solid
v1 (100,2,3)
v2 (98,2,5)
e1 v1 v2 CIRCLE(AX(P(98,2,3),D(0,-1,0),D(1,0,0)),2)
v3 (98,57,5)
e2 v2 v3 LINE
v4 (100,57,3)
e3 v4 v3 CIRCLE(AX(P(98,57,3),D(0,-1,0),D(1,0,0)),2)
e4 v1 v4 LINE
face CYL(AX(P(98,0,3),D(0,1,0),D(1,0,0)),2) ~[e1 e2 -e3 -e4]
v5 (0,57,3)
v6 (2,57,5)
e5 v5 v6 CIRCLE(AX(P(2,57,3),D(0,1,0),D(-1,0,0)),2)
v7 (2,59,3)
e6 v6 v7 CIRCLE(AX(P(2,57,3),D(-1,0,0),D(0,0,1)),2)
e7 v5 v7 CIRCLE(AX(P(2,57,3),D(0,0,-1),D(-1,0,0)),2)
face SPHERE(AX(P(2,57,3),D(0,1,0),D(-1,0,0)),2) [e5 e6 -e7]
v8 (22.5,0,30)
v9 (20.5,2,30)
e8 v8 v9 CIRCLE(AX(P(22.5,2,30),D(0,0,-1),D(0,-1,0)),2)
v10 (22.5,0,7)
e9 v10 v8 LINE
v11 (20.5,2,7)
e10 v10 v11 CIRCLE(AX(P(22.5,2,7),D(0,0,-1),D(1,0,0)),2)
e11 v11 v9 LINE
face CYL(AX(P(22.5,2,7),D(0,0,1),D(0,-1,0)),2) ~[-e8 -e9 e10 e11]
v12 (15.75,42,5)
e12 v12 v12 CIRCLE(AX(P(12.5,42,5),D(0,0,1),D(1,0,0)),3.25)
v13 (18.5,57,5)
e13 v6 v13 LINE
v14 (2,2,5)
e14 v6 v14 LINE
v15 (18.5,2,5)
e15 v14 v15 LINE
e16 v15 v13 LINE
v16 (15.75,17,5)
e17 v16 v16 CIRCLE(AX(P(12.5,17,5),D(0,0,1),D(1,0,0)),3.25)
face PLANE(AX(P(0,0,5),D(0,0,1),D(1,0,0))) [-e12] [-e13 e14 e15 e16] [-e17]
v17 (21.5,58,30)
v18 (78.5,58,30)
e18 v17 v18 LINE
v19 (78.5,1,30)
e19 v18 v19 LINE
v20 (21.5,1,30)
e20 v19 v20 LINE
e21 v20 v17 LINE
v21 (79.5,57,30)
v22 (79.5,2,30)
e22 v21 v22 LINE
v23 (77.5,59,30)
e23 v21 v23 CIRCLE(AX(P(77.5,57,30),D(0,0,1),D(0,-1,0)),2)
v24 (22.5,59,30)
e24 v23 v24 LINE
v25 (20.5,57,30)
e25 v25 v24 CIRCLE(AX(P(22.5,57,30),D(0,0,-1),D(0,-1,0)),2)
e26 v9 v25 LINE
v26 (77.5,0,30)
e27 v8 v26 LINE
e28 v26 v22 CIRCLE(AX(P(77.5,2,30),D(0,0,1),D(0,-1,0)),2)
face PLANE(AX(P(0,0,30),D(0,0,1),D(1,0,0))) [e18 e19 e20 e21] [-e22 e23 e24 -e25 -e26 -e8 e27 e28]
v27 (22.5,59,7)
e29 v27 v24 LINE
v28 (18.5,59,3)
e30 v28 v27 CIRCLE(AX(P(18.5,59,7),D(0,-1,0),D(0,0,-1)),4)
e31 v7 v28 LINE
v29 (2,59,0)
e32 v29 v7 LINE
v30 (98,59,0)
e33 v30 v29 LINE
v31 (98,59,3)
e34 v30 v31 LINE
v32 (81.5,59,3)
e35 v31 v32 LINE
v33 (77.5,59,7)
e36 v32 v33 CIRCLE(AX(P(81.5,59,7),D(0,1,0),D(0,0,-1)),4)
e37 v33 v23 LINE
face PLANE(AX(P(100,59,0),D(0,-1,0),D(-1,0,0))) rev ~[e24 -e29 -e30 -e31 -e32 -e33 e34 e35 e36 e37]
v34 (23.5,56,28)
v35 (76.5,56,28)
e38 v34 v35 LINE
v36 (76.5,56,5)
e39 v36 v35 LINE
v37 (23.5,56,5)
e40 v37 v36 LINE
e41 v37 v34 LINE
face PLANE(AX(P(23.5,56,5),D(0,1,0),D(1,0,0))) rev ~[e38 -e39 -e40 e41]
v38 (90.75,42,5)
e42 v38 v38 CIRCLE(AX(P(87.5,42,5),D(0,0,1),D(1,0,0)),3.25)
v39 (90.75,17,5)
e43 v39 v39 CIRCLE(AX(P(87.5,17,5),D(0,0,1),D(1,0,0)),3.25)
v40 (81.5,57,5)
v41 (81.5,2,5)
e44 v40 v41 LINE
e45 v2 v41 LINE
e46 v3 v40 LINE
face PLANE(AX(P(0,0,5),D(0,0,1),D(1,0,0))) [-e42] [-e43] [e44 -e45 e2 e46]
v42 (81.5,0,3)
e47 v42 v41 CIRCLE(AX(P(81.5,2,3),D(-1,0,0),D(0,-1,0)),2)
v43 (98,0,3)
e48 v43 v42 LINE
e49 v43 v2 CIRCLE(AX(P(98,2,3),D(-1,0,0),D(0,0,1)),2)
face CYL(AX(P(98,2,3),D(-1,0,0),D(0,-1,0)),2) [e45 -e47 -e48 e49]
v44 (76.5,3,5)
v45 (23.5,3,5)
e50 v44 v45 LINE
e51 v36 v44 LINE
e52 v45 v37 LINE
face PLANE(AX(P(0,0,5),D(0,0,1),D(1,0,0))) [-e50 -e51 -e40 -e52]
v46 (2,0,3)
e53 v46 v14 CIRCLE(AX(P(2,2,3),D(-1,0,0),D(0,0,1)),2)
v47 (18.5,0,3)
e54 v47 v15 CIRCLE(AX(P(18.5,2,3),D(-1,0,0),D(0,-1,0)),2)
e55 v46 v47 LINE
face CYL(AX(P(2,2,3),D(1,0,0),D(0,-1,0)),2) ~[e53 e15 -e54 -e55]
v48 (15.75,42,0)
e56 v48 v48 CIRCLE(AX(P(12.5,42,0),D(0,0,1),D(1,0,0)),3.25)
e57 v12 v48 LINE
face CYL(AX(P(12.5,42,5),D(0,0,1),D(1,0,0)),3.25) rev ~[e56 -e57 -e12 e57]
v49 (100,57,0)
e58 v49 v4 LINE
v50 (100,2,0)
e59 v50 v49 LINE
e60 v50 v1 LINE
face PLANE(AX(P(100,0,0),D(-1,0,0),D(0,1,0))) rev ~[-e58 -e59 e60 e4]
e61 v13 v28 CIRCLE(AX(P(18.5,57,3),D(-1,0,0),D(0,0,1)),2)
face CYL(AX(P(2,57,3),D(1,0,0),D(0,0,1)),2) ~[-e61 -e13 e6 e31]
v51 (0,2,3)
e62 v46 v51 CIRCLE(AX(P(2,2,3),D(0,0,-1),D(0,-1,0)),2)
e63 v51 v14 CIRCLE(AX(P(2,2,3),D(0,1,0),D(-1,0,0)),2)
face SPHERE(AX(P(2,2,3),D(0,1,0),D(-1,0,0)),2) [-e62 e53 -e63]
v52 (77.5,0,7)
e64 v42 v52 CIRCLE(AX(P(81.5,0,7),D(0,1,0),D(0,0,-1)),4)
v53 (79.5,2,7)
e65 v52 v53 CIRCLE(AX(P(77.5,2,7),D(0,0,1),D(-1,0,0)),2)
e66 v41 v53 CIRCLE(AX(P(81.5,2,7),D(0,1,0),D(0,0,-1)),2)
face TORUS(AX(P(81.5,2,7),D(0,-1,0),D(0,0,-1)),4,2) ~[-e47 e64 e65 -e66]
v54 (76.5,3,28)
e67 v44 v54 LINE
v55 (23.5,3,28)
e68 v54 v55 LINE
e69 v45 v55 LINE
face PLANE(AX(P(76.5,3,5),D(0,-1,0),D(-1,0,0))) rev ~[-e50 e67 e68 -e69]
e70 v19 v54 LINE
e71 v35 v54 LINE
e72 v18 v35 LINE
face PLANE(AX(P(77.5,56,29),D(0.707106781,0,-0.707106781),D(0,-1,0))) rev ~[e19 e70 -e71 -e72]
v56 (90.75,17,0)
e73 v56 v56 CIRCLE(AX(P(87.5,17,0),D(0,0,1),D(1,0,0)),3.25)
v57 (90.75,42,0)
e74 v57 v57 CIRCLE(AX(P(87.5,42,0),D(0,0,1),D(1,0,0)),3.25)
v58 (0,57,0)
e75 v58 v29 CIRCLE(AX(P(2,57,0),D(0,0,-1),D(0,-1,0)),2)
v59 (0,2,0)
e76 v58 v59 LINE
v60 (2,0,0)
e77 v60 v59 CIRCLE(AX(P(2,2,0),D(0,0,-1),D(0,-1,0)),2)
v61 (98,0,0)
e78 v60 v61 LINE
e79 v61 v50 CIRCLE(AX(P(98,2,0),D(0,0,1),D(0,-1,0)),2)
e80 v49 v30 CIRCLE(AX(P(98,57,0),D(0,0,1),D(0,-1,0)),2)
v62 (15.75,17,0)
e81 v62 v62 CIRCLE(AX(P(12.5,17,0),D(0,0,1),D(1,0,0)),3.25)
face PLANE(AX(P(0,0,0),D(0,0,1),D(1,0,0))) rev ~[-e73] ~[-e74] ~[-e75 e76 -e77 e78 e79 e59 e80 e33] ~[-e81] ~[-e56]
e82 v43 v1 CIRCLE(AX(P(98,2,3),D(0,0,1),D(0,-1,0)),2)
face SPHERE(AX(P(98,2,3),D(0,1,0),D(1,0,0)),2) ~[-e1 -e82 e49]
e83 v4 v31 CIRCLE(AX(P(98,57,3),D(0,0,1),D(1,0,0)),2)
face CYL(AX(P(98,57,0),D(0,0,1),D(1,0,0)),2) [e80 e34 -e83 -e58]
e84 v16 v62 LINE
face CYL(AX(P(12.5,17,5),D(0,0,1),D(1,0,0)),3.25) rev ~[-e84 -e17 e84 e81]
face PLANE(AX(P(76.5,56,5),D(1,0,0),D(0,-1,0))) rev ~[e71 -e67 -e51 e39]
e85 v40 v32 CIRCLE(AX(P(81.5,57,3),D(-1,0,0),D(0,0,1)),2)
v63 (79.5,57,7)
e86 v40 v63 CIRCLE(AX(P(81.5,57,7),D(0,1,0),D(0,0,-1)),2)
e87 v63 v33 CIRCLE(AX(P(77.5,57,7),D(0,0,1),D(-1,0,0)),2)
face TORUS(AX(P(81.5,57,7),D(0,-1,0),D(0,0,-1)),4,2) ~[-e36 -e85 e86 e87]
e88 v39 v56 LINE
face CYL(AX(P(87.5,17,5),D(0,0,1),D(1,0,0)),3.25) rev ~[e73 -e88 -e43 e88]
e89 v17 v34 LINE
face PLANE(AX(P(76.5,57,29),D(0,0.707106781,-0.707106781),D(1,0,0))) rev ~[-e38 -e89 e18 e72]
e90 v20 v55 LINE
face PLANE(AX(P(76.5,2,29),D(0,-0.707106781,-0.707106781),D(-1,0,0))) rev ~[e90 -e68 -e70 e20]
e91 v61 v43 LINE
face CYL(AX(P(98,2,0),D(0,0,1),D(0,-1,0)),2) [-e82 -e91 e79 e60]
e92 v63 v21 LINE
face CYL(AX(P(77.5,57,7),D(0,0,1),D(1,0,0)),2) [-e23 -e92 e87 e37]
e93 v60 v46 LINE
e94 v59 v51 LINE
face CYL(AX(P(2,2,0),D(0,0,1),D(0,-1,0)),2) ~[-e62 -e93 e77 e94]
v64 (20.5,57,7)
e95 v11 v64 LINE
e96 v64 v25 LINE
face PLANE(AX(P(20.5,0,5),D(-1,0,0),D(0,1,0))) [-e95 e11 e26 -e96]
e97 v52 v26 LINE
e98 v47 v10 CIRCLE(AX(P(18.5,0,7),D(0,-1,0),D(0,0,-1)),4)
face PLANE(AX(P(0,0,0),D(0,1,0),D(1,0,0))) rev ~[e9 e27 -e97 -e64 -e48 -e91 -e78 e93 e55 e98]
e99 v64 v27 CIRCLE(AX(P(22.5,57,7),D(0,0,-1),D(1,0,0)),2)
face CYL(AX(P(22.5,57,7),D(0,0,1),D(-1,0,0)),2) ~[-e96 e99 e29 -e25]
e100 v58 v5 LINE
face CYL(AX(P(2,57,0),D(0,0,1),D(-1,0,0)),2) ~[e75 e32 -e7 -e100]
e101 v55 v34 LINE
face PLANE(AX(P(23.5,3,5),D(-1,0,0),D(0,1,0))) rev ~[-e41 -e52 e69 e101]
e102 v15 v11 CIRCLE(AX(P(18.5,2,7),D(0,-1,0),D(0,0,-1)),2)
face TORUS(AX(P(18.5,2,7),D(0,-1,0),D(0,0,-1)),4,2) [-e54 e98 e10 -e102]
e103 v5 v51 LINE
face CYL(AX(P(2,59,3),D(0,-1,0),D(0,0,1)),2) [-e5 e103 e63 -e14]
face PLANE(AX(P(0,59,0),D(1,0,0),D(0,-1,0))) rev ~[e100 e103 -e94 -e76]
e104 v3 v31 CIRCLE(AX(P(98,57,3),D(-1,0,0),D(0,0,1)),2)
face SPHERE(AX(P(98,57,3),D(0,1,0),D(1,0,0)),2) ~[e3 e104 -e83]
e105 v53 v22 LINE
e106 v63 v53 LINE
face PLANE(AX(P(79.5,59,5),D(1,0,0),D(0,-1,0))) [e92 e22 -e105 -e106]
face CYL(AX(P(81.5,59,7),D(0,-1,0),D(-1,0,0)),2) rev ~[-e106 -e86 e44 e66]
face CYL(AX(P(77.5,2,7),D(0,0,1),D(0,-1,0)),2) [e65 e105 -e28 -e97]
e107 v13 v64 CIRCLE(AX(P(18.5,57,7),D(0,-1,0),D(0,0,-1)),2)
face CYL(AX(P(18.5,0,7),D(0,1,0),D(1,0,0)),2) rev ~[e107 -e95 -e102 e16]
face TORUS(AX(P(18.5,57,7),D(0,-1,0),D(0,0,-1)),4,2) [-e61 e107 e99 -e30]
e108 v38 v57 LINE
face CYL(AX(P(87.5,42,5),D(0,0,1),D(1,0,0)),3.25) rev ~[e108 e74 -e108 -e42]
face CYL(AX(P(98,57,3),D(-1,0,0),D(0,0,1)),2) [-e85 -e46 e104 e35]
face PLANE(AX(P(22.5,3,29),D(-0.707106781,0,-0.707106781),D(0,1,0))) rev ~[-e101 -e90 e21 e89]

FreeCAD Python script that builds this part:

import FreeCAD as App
import Part
import Sketcher
from FreeCAD import Vector


def edges_at(feature, points):
    """Names of the edges that pass closest to the given points."""
    edges = feature.Shape.Edges
    near = lambda p: min(range(len(edges)), key=lambda i: edges[i].distToShape(Part.Vertex(*p))[0])
    return sorted({f"Edge{near(p) + 1}" for p in points})

doc = App.newDocument("Part")
body = doc.addObject("PartDesign::Body", "Body")

sketch1 = body.newObject("Sketcher::SketchObject", "Sketch")
sketch1.AttachmentSupport = (doc.getObject("XY_Plane"), [""])
sketch1.MapMode = "FlatFace"
sketch1.addGeometry(Part.LineSegment(Vector(0, 59, 0), Vector(0, 0, 0)), False)
sketch1.addGeometry(Part.LineSegment(Vector(0, 0, 0), Vector(100, 0, 0)), False)
sketch1.addGeometry(Part.LineSegment(Vector(100, 0, 0), Vector(100, 59, 0)), False)
sketch1.addGeometry(Part.LineSegment(Vector(100, 59, 0), Vector(0, 59, 0)), False)
sketch1.addConstraint(Sketcher.Constraint("Coincident", 0, 2, 1, 1))
sketch1.addConstraint(Sketcher.Constraint("Coincident", 1, 2, 2, 1))
sketch1.addConstraint(Sketcher.Constraint("Coincident", 2, 2, 3, 1))
sketch1.addConstraint(Sketcher.Constraint("Coincident", 3, 2, 0, 1))
sketch1.addConstraint(Sketcher.Constraint("Vertical", 0))
sketch1.addConstraint(Sketcher.Constraint("Horizontal", 1))
sketch1.addConstraint(Sketcher.Constraint("Vertical", 2))
sketch1.addConstraint(Sketcher.Constraint("Horizontal", 3))
sketch1.addConstraint(Sketcher.Constraint("Coincident", 0, 2, -1, 1))
sketch1.addConstraint(Sketcher.Constraint("DistanceX", 1, 1, 1, 2, 100.0))
sketch1.addConstraint(Sketcher.Constraint("DistanceY", 0, 2, 0, 1, 59.0))
pad1 = body.newObject("PartDesign::Pad", "Pad")
pad1.Profile = sketch1
pad1.Length = 5

sketch2 = body.newObject("Sketcher::SketchObject", "Sketch001")
sketch2.AttachmentSupport = (doc.getObject("XY_Plane"), [""])
sketch2.MapMode = "FlatFace"
sketch2.AttachmentOffset = App.Placement(Vector(0, 0, 5), App.Rotation())
sketch2.addGeometry(Part.LineSegment(Vector(20, 59, 0), Vector(20, 0, 0)), False)
sketch2.addGeometry(Part.LineSegment(Vector(20, 0, 0), Vector(80, 0, 0)), False)
sketch2.addGeometry(Part.LineSegment(Vector(80, 0, 0), Vector(80, 59, 0)), False)
sketch2.addGeometry(Part.LineSegment(Vector(80, 59, 0), Vector(20, 59, 0)), False)
sketch2.addGeometry(Part.LineSegment(Vector(76, 56, 0), Vector(76, 3, 0)), False)
sketch2.addGeometry(Part.LineSegment(Vector(76, 3, 0), Vector(24, 3, 0)), False)
sketch2.addGeometry(Part.LineSegment(Vector(24, 3, 0), Vector(24, 56, 0)), False)
sketch2.addGeometry(Part.LineSegment(Vector(24, 56, 0), Vector(76, 56, 0)), False)
sketch2.addConstraint(Sketcher.Constraint("Coincident", 0, 2, 1, 1))
sketch2.addConstraint(Sketcher.Constraint("Coincident", 1, 2, 2, 1))
sketch2.addConstraint(Sketcher.Constraint("Coincident", 2, 2, 3, 1))
sketch2.addConstraint(Sketcher.Constraint("Coincident", 3, 2, 0, 1))
sketch2.addConstraint(Sketcher.Constraint("Coincident", 4, 2, 5, 1))
sketch2.addConstraint(Sketcher.Constraint("Coincident", 5, 2, 6, 1))
sketch2.addConstraint(Sketcher.Constraint("Coincident", 6, 2, 7, 1))
sketch2.addConstraint(Sketcher.Constraint("Coincident", 7, 2, 4, 1))
sketch2.addConstraint(Sketcher.Constraint("Vertical", 0))
sketch2.addConstraint(Sketcher.Constraint("Horizontal", 1))
sketch2.addConstraint(Sketcher.Constraint("Vertical", 2))
sketch2.addConstraint(Sketcher.Constraint("Horizontal", 3))
sketch2.addConstraint(Sketcher.Constraint("Vertical", 4))
sketch2.addConstraint(Sketcher.Constraint("Horizontal", 5))
sketch2.addConstraint(Sketcher.Constraint("Vertical", 6))
sketch2.addConstraint(Sketcher.Constraint("Horizontal", 7))
sketch2.addConstraint(Sketcher.Constraint("PointOnObject", 0, 2, -1))
sketch2.addConstraint(Sketcher.Constraint("Equal", 3, 0))
sketch2.addConstraint(Sketcher.Constraint("Equal", 7, 4))
sketch2.addConstraint(Sketcher.Constraint("DistanceX", 1, 1, 1, 2, 59.0))
sketch2.addConstraint(Sketcher.Constraint("DistanceX", 5, 2, 5, 1, 53.0))
sketch2.addConstraint(Sketcher.Constraint("DistanceY", -1, 1, 4, 2, 3.0))
sketch2.addConstraint(Sketcher.Constraint("DistanceX", 4, 2, 1, 2, 3.0))
sketch2.addConstraint(Sketcher.Constraint("DistanceX", -1, 1, 0, 2, 20.5))
pad2 = body.newObject("PartDesign::Pad", "Pad001")
pad2.Profile = sketch2
pad2.Length = 25
doc.recompute()

chamfer = body.newObject("PartDesign::Chamfer", "Chamfer")
chamfer.Base = (pad2, edges_at(pad2, [(50, 3, 30)]))
chamfer.Size = 2
doc.recompute()

chamfer2 = body.newObject("PartDesign::Chamfer", "Chamfer001")
chamfer2.Base = (chamfer, edges_at(chamfer, [(76.5, 29.5, 30)]))
chamfer2.Size = 2
doc.recompute()

chamfer3 = body.newObject("PartDesign::Chamfer", "Chamfer002")
chamfer3.Base = (chamfer2, edges_at(chamfer2, [(50, 56, 30), (23.5, 29.5, 30)]))
chamfer3.Size = 2

sketch3 = body.newObject("Sketcher::SketchObject", "Sketch002")
sketch3.AttachmentSupport = (doc.getObject("XY_Plane"), [""])
sketch3.MapMode = "FlatFace"
sketch3.AttachmentOffset = App.Placement(Vector(0, 0, 5), App.Rotation())
sketch3.addGeometry(Part.Circle(Vector(87.5, 17, 0), Vector(0, 0, 1), 3.2), False)
sketch3.addGeometry(Part.Circle(Vector(87.5, 42, 0), Vector(0, 0, 1), 3.2), False)
sketch3.addGeometry(Part.Circle(Vector(12.5, 17, 0), Vector(0, 0, 1), 3.2), False)
sketch3.addGeometry(Part.Circle(Vector(12.5, 42, 0), Vector(0, 0, 1), 3.2), False)
sketch3.addConstraint(Sketcher.Constraint("Equal", 0, 1))
sketch3.addConstraint(Sketcher.Constraint("Equal", 1, 2))
sketch3.addConstraint(Sketcher.Constraint("Equal", 2, 3))
sketch3.addConstraint(Sketcher.Constraint("Horizontal", 0, 3, 2, 3))
sketch3.addConstraint(Sketcher.Constraint("Horizontal", 1, 3, 3, 3))
sketch3.addConstraint(Sketcher.Constraint("Vertical", 0, 3, 1, 3))
sketch3.addConstraint(Sketcher.Constraint("Vertical", 2, 3, 3, 3))
sketch3.addConstraint(Sketcher.Constraint("Diameter", 0, 6.5))
sketch3.addConstraint(Sketcher.Constraint("DistanceY", -1, 1, 0, 3, 17.0))
sketch3.addConstraint(Sketcher.Constraint("DistanceY", 0, 3, 1, 3, 25.0))
sketch3.addConstraint(Sketcher.Constraint("DistanceX", -1, 1, 2, 3, 12.5))
sketch3.addConstraint(Sketcher.Constraint("DistanceX", 2, 3, 0, 3, 75.0))
pocket1 = body.newObject("PartDesign::Pocket", "Pocket")
pocket1.Profile = sketch3
pocket1.Length = 60
doc.recompute()

fillet = body.newObject("PartDesign::Fillet", "Fillet")
fillet.Base = (pocket1, edges_at(pocket1, [(20.5, 29.5, 5), (79.5, 29.5, 5)]))
fillet.Radius = 2
doc.recompute()

fillet2 = body.newObject("PartDesign::Fillet", "Fillet001")
fillet2.Base = (fillet, edges_at(fillet, [(0, 29.5, 5), (100, 29.5, 5)]))
fillet2.Radius = 2
doc.recompute()

fillet3 = body.newObject("PartDesign::Fillet", "Fillet002")
fillet3.Base = (fillet2, edges_at(fillet2, [
    (20.5, 0, 18.5),
    (19.914, 0, 5.586),
    (10.25, 0, 5),
    (0.586, 0, 4.414),
    (0, 0, 1.5),
    (79.5, 0, 18.5),
    (80.086, 0, 5.586),
    (89.75, 0, 5),
    (99.414, 0, 4.414),
    (100, 0, 1.5),
    (79.5, 59, 18.5),
    (80.086, 59, 5.586),
    (89.75, 59, 5),
    (99.414, 59, 4.414),
    (100, 59, 1.5),
    (20.5, 59, 18.5),
    (19.914, 59, 5.586),
    (10.25, 59, 5),
    (0.586, 59, 4.414),
    (0, 59, 1.5),
]))
fillet3.Radius = 2

doc.recompute()
